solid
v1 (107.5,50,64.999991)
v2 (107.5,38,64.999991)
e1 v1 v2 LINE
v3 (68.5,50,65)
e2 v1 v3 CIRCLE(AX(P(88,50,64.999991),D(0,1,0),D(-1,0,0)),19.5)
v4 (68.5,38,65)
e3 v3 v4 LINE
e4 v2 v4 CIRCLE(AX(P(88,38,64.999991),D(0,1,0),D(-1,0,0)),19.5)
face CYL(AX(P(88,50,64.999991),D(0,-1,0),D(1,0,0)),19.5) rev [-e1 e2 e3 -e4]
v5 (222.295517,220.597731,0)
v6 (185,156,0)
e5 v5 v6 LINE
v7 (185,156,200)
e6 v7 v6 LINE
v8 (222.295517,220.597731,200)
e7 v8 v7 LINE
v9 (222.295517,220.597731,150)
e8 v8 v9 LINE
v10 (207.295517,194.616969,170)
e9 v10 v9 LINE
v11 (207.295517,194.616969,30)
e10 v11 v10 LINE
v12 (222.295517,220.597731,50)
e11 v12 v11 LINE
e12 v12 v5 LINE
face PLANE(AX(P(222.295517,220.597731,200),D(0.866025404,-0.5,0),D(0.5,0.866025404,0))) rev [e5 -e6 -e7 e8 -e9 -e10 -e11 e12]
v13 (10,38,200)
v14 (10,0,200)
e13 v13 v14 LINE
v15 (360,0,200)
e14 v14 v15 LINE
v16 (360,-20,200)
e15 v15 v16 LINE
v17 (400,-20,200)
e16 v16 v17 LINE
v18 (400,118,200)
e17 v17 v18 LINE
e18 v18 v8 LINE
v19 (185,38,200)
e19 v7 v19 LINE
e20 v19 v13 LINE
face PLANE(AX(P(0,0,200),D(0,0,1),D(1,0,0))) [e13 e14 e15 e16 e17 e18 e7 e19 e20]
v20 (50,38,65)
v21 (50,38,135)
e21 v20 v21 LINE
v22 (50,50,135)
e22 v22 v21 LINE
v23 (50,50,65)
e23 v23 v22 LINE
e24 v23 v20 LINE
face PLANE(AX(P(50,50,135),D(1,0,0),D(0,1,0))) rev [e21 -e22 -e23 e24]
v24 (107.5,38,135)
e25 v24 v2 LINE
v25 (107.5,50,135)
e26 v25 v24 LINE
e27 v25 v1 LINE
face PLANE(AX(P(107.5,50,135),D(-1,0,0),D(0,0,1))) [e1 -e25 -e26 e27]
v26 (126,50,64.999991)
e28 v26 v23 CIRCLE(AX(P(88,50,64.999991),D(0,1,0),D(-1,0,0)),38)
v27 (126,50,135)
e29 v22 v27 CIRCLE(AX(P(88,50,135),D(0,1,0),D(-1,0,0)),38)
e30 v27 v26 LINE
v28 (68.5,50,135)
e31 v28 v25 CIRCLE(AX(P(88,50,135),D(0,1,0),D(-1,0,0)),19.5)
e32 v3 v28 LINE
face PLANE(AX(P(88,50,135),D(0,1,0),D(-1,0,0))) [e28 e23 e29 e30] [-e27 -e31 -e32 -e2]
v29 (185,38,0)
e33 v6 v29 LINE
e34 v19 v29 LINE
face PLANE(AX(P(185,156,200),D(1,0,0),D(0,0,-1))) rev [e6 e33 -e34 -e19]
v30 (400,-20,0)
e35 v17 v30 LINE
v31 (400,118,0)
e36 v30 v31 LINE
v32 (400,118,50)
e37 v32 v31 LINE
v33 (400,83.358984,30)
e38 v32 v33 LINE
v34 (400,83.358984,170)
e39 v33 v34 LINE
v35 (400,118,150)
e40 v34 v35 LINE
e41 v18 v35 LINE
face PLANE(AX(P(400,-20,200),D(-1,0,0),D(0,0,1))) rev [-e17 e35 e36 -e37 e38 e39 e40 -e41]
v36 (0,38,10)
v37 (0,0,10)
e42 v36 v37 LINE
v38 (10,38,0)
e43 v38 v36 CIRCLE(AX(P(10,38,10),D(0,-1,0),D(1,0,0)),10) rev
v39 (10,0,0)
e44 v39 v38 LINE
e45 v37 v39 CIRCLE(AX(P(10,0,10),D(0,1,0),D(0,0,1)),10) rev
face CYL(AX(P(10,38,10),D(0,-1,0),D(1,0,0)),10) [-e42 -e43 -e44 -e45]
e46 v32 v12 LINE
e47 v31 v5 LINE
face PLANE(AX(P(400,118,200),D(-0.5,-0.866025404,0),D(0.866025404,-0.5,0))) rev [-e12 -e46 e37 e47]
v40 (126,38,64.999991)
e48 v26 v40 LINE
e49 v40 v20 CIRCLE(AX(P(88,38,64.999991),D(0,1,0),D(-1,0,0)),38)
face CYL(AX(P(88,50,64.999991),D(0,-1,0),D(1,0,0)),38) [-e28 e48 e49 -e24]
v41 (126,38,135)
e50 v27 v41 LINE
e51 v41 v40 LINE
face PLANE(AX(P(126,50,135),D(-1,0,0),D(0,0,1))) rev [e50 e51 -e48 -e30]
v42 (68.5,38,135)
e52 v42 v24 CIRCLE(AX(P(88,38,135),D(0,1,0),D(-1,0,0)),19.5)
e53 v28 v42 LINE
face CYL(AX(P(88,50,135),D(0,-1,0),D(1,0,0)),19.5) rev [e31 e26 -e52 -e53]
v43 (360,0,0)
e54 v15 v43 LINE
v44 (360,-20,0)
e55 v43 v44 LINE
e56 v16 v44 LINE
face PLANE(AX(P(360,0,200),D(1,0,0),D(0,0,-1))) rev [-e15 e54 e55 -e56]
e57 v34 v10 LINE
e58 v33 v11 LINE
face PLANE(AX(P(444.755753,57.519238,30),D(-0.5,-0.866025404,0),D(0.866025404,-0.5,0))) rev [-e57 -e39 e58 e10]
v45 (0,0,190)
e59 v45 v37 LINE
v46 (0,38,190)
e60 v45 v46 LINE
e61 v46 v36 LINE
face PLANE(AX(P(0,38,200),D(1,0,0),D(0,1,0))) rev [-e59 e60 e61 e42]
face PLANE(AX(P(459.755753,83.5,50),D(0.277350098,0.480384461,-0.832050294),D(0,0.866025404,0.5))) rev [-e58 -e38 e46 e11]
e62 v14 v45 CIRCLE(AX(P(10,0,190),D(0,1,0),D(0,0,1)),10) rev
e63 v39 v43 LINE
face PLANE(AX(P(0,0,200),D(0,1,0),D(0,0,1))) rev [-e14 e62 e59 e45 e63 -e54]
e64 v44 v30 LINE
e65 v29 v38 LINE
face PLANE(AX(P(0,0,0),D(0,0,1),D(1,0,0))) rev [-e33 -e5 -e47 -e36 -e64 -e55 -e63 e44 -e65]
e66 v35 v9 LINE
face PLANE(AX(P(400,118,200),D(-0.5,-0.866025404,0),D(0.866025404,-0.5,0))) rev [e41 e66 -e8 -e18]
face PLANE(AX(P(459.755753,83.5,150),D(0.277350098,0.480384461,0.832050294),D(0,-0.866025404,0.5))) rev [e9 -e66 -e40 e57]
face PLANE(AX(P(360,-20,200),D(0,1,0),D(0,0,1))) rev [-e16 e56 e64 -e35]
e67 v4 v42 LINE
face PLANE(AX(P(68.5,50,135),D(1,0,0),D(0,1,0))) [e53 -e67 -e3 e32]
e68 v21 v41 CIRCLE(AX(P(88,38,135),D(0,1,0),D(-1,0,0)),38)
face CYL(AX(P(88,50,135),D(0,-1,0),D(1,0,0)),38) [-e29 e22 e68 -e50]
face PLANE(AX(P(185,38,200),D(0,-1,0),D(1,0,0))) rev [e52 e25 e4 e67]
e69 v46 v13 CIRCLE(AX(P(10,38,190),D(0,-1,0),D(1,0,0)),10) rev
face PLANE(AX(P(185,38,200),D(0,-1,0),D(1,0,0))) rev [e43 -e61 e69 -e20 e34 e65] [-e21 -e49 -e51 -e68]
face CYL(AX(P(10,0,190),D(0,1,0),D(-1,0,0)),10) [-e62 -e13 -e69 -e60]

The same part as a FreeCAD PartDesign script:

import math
import FreeCAD as App
import Part
import Sketcher
Q = App.Units.Quantity


def edges_at(feature, points):
    """Names of the edges that pass closest to the given points."""
    edges = feature.Shape.Edges
    near = lambda p: min(range(len(edges)), key=lambda i: edges[i].distToShape(Part.Vertex(*p))[0])
    return sorted({f"Edge{near(p) + 1}" for p in points})


def add_polygon(sketch, points):
    """Adds a closed chain of lines whose ends are joined by coincident constraints."""
    first, n = sketch.GeometryCount, len(points)
    for a, b in zip(points, points[1:] + points[:1]):
        sketch.addGeometry(Part.LineSegment(App.Vector(*a, 0), App.Vector(*b, 0)), False)
    for i in range(n):
        sketch.addConstraint(Sketcher.Constraint("Coincident", first + i, 2, first + (i + 1) % n, 1))

doc = App.newDocument("Part")
body = doc.addObject("PartDesign::Body", "Body")

# Sketch on XY plane
sketch1 = body.newObject("Sketcher::SketchObject", "Sketch")
sketch1.AttachmentSupport = (doc.getObject("XY_Plane"), [""])
sketch1.MapMode = "FlatFace"
add_polygon(sketch1, [(0, 0), (360, 0), (360, -20), (400, -20), (400, 118), (222, 221), (185, 156), (185, 38), (0, 38)])  # lines 0-8
sketch1.addConstraint([
    Sketcher.Constraint("Horizontal", 0),
    Sketcher.Constraint("Vertical", 1),
    Sketcher.Constraint("Horizontal", 2),
    Sketcher.Constraint("Vertical", 3),
    Sketcher.Constraint("Vertical", 6),
    Sketcher.Constraint("Horizontal", 7),
    Sketcher.Constraint("Vertical", 8),
    Sketcher.Constraint("Coincident", 8, 2, -1, 1),
    Sketcher.Constraint("Perpendicular", 4, 5),
    Sketcher.Constraint("DistanceX", 0, 1, 0, 2, 360.0),
    Sketcher.Constraint("DistanceX", 2, 1, 2, 2, 40.0),
    Sketcher.Constraint("DistanceX", 7, 2, 7, 1, 185.0),
    Sketcher.Constraint("DistanceY", 1, 2, 1, 1, 20.0),
    Sketcher.Constraint("DistanceY", 3, 1, 3, 2, 138.0),
    Sketcher.Constraint("DistanceY", 6, 2, 6, 1, 118.0),
    Sketcher.Constraint("DistanceY", 8, 2, 8, 1, 38.0),
    Sketcher.Constraint("Angle", 4, Q("150 deg")),
])
pad1 = body.newObject("PartDesign::Pad", "Pad")
pad1.Profile = sketch1
pad1.Length = 200

# Sketch on an angled plane
sketch2 = body.newObject("Sketcher::SketchObject", "Sketch001")
sketch2.Placement = App.Placement(App.Vector(71.200019, -41.10735, 0), App.Rotation(App.Vector(0, 0, 1), App.Vector(0.5, 0.866025404, 0), App.Vector(-0.866025404, 0.5, 0), "ZXY"))
add_polygon(sketch2, [(30, 272), (170, 272), (150, 302), (50, 302)])  # lines 0-3
sketch2.addConstraint([
    Sketcher.Constraint("Horizontal", 0),
    Sketcher.Constraint("Horizontal", 2),
    Sketcher.Constraint("Equal", 1, 3),
    Sketcher.Constraint("DistanceX", 0, 1, 0, 2, 140.0),
    Sketcher.Constraint("DistanceX", 2, 2, 2, 1, 100.0),
    Sketcher.Constraint("DistanceX", -1, 1, 0, 2, 170.0),
    Sketcher.Constraint("DistanceY", 0, 2, 1, 2, 30.0),
    Sketcher.Constraint("DistanceY", -1, 1, 0, 2, 272.190998),
])
pocket1 = body.newObject("PartDesign::Pocket", "Pocket")
pocket1.Profile = sketch2
pocket1.Type = "ThroughAll"
doc.recompute()

fillet = body.newObject("PartDesign::Fillet", "Fillet")
fillet.Base = (pocket1, edges_at(pocket1, [(0, 19, 0), (0, 19, 200)]))
fillet.Radius = 10

# Sketch on XZ plane
sketch3 = body.newObject("Sketcher::SketchObject", "Sketch002")
sketch3.AttachmentSupport = (doc.getObject("XZ_Plane"), [""])
sketch3.MapMode = "FlatFace"
sketch3.AttachmentOffset = App.Placement(App.Vector(0, 0, -38), App.Rotation())
sketch3.addGeometry([
    Part.LineSegment(App.Vector(50, 65, 0), App.Vector(50, 135, 0)),  # 0
    Part.ArcOfCircle(Part.Circle(App.Vector(88, 135, 0), App.Vector(0, 0, 1), 38), math.radians(0), math.radians(180)),  # 1
    Part.LineSegment(App.Vector(126, 135, 0), App.Vector(126, 65, 0)),  # 2
    Part.ArcOfCircle(Part.Circle(App.Vector(88, 65, 0), App.Vector(0, 0, 1), 38), math.radians(180), math.radians(360)),  # 3
    Part.LineSegment(App.Vector(68, 135, 0), App.Vector(68, 65, 0)),  # 4
    Part.ArcOfCircle(Part.Circle(App.Vector(88, 65, 0), App.Vector(0, 0, 1), 20), math.radians(180), math.radians(360)),  # 5
    Part.LineSegment(App.Vector(108, 65, 0), App.Vector(108, 135, 0)),  # 6
    Part.ArcOfCircle(Part.Circle(App.Vector(88, 135, 0), App.Vector(0, 0, 1), 20), math.radians(0), math.radians(180)),  # 7
], False)
sketch3.addConstraint([
    Sketcher.Constraint("Tangent", 0, 2, 1, 2),
    Sketcher.Constraint("Tangent", 1, 1, 2, 1),
    Sketcher.Constraint("Tangent", 2, 2, 3, 2),
    Sketcher.Constraint("Tangent", 3, 1, 0, 1),
    Sketcher.Constraint("Tangent", 4, 2, 5, 1),
    Sketcher.Constraint("Tangent", 5, 2, 6, 1),
    Sketcher.Constraint("Tangent", 6, 2, 7, 1),
    Sketcher.Constraint("Tangent", 7, 2, 4, 1),
    Sketcher.Constraint("Vertical", 0),
    Sketcher.Constraint("Vertical", 2),
    Sketcher.Constraint("Vertical", 4),
    Sketcher.Constraint("Vertical", 6),
    Sketcher.Constraint("Coincident", 5, 3, 3, 3),
    Sketcher.Constraint("Horizontal", 7, 3, 0, 2),
    Sketcher.Constraint("Radius", 1, 38.0),
    Sketcher.Constraint("Radius", 5, 19.5),
    Sketcher.Constraint("DistanceY", 0, 1, 0, 2, 70.0),
    Sketcher.Constraint("DistanceX", -1, 1, 1, 3, 88.0),
    Sketcher.Constraint("DistanceY", -1, 1, 1, 3, 135.0),
])
pad2 = body.newObject("PartDesign::Pad", "Pad001")
pad2.Profile = sketch3
pad2.Length = 12
pad2.Reversed = True

doc.recompute()
